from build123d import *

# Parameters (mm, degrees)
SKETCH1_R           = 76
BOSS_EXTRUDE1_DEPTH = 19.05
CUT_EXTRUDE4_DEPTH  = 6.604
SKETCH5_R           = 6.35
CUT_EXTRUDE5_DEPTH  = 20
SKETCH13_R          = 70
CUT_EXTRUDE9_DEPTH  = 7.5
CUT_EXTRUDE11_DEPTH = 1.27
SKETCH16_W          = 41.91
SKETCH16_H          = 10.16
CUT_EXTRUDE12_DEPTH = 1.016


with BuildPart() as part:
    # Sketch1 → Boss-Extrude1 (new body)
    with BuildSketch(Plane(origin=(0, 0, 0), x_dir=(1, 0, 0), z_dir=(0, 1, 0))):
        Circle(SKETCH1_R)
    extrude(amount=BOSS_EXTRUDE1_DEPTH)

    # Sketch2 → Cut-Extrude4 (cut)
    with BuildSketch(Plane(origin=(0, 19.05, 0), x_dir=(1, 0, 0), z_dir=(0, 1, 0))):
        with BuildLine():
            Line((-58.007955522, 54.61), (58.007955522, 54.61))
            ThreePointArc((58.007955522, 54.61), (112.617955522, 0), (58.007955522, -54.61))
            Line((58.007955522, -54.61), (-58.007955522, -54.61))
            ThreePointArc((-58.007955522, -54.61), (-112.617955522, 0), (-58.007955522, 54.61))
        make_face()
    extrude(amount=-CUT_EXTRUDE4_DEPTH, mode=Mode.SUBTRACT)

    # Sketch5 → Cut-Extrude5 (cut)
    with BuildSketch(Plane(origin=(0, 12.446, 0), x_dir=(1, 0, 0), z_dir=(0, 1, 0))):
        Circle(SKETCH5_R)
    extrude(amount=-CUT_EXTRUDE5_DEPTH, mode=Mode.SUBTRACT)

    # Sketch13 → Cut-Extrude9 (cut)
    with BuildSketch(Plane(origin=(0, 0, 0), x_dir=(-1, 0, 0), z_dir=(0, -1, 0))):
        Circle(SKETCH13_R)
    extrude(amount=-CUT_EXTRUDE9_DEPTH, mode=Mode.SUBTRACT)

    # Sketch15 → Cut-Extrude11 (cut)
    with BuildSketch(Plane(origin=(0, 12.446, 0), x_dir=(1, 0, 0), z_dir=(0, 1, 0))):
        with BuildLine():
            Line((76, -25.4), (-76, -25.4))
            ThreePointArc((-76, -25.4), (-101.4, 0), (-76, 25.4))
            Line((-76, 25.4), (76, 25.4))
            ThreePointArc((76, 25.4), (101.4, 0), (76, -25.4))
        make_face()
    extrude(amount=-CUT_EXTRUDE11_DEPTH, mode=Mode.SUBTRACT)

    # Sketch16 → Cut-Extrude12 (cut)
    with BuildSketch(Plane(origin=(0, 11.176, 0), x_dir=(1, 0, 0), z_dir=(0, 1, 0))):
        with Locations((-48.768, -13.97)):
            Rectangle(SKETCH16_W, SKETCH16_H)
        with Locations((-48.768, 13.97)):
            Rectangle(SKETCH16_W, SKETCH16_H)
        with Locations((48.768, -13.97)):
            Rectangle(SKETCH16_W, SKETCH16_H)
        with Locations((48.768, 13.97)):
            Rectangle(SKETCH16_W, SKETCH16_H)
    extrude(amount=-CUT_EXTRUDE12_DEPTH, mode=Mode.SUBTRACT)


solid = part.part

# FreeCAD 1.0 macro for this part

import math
import FreeCAD as App
import Part
import Sketcher
from FreeCAD import Vector
Q = App.Units.Quantity


def add_polygon(sketch, points):
    """Adds a closed chain of lines whose ends are joined by coincident constraints."""
    first, n = sketch.GeometryCount, len(points)
    for a, b in zip(points, points[1:] + points[:1]):
        sketch.addGeometry(Part.LineSegment(App.Vector(*a, 0), App.Vector(*b, 0)), False)
    for i in range(n):
        sketch.addConstraint(Sketcher.Constraint("Coincident", first + i, 2, first + (i + 1) % n, 1))

doc = App.newDocument("Part")
params = doc.addObject("Spreadsheet::Sheet", "Params")
for row, (alias, value) in enumerate([
    ("pad1_length", "0.75 in"),
    ("sketch2_radius", "2.15 in"),
    ("pocket1_length", "0.26 in"),
    ("sketch3_diameter", "0.5 in"),
    ("pocket2_length", "20 mm"),
    ("pocket3_length", "7.5 mm"),
    ("sketch5_radius", "1 in"),
    ("pocket4_length", "0.05 in"),
    ("sketch6_height", "0.4 in"),
    ("sketch6_width", "1.65 in"),
    ("pocket5_length", "0.04 in"),
], start=1):
    params.set(f"A{row}", alias)
    params.set(f"B{row}", "=" + value)
    params.setAlias(f"B{row}", alias)

body = doc.addObject("PartDesign::Body", "Body")

# Sketch on XZ plane
sketch1 = doc.addObject("Sketcher::SketchObject", "Sketch")
body.addObject(sketch1)
sketch1.AttachmentSupport = (doc.XZ_Plane, [""])
sketch1.MapMode = "FlatFace"
sketch1.addGeometry(Part.Circle(Vector(0, 0, 0), Vector(0, 0, 1), 76), False)
sketch1.addConstraint(Sketcher.Constraint("Coincident", 0, 3, -1, 1))
sketch1.addConstraint(Sketcher.Constraint("Diameter", 0, Q("152 mm")))
pad1 = doc.addObject("PartDesign::Pad", "Pad")
body.addObject(pad1)
pad1.Profile = sketch1
pad1.setExpression("Length", "Params.pad1_length")
pad1.Reversed = True

# Sketch on XZ plane
sketch2 = doc.addObject("Sketcher::SketchObject", "Sketch001")
body.addObject(sketch2)
sketch2.AttachmentSupport = (doc.XZ_Plane, [""])
sketch2.MapMode = "FlatFace"
sketch2.AttachmentOffset = App.Placement(Vector(0, 0, -0.75 * 25.4), App.Rotation())
sketch2.addGeometry(Part.LineSegment(Vector(58, -55, 0), Vector(-58, -55, 0)), False)
sketch2.addGeometry(Part.ArcOfCircle(Part.Circle(Vector(-58, 0, 0), Vector(0, 0, 1), 55), math.radians(90), math.radians(270)), False)
sketch2.addGeometry(Part.LineSegment(Vector(-58, 55, 0), Vector(58, 55, 0)), False)
sketch2.addGeometry(Part.ArcOfCircle(Part.Circle(Vector(58, 0, 0), Vector(0, 0, 1), 55), math.radians(-90), math.radians(90)), False)
sketch2.addConstraint(Sketcher.Constraint("Tangent", 0, 2, 1, 2))
sketch2.addConstraint(Sketcher.Constraint("Tangent", 1, 1, 2, 1))
sketch2.addConstraint(Sketcher.Constraint("Tangent", 2, 2, 3, 2))
sketch2.addConstraint(Sketcher.Constraint("Tangent", 3, 1, 0, 1))
sketch2.addConstraint(Sketcher.Constraint("Horizontal", 0))
sketch2.addConstraint(Sketcher.Constraint("Horizontal", 2))
sketch2.addConstraint(Sketcher.Constraint("Symmetric", 1, 3, 3, 3, -1, 1))
sketch2.addConstraint(Sketcher.Constraint("Radius", 1, Q("2.15 in")))
sketch2.addConstraint(Sketcher.Constraint("DistanceX", 0, 2, 0, 1, Q("116.015911 mm")))
sketch2.setExpression("Constraints[7]", "Params.sketch2_radius")
pocket1 = doc.addObject("PartDesign::Pocket", "Pocket")
body.addObject(pocket1)
pocket1.Profile = sketch2
pocket1.setExpression("Length", "Params.pocket1_length")
pocket1.Reversed = True

# Sketch on XZ plane
sketch3 = doc.addObject("Sketcher::SketchObject", "Sketch002")
body.addObject(sketch3)
sketch3.AttachmentSupport = (doc.XZ_Plane, [""])
sketch3.MapMode = "FlatFace"
sketch3.AttachmentOffset = App.Placement(Vector(0, 0, -0.49 * 25.4), App.Rotation())
sketch3.addGeometry(Part.Circle(Vector(0, 0, 0), Vector(0, 0, 1), 6), False)
sketch3.addConstraint(Sketcher.Constraint("Coincident", 0, 3, -1, 1))
sketch3.addConstraint(Sketcher.Constraint("Diameter", 0, Q("0.5 in")))
sketch3.setExpression("Constraints[1]", "Params.sketch3_diameter")
pocket2 = doc.addObject("PartDesign::Pocket", "Pocket001")
body.addObject(pocket2)
pocket2.Profile = sketch3
pocket2.setExpression("Length", "Params.pocket2_length")
pocket2.Reversed = True

# Sketch on XZ plane
sketch4 = doc.addObject("Sketcher::SketchObject", "Sketch003")
body.addObject(sketch4)
sketch4.AttachmentSupport = (doc.XZ_Plane, [""])
sketch4.MapMode = "FlatFace"
sketch4.addGeometry(Part.Circle(Vector(0, 0, 0), Vector(0, 0, 1), 70), False)
sketch4.addConstraint(Sketcher.Constraint("Coincident", 0, 3, -1, 1))
sketch4.addConstraint(Sketcher.Constraint("Diameter", 0, Q("140 mm")))
pocket3 = doc.addObject("PartDesign::Pocket", "Pocket002")
body.addObject(pocket3)
pocket3.Profile = sketch4
pocket3.setExpression("Length", "Params.pocket3_length")

# Sketch on XZ plane
sketch5 = doc.addObject("Sketcher::SketchObject", "Sketch004")
body.addObject(sketch5)
sketch5.AttachmentSupport = (doc.XZ_Plane, [""])
sketch5.MapMode = "FlatFace"
sketch5.AttachmentOffset = App.Placement(Vector(0, 0, -0.49 * 25.4), App.Rotation())
sketch5.addGeometry(Part.LineSegment(Vector(-76, 25, 0), Vector(76, 25, 0)), False)
sketch5.addGeometry(Part.ArcOfCircle(Part.Circle(Vector(76, 0, 0), Vector(0, 0, 1), 25), math.radians(-90), math.radians(90)), False)
sketch5.addGeometry(Part.LineSegment(Vector(76, -25, 0), Vector(-76, -25, 0)), False)
sketch5.addGeometry(Part.ArcOfCircle(Part.Circle(Vector(-76, 0, 0), Vector(0, 0, 1), 25), math.radians(90), math.radians(270)), False)
sketch5.addConstraint(Sketcher.Constraint("Tangent", 0, 2, 1, 2))
sketch5.addConstraint(Sketcher.Constraint("Tangent", 1, 1, 2, 1))
sketch5.addConstraint(Sketcher.Constraint("Tangent", 2, 2, 3, 2))
sketch5.addConstraint(Sketcher.Constraint("Tangent", 3, 1, 0, 1))
sketch5.addConstraint(Sketcher.Constraint("Horizontal", 0))
sketch5.addConstraint(Sketcher.Constraint("Horizontal", 2))
sketch5.addConstraint(Sketcher.Constraint("Symmetric", 1, 3, 3, 3, -1, 1))
sketch5.addConstraint(Sketcher.Constraint("Radius", 1, Q("1 in")))
sketch5.addConstraint(Sketcher.Constraint("DistanceX", 0, 1, 0, 2, Q("152 mm")))
sketch5.setExpression("Constraints[7]", "Params.sketch5_radius")
pocket4 = doc.addObject("PartDesign::Pocket", "Pocket003")
body.addObject(pocket4)
pocket4.Profile = sketch5
pocket4.setExpression("Length", "Params.pocket4_length")
pocket4.Reversed = True

# Sketch on XZ plane
sketch6 = doc.addObject("Sketcher::SketchObject", "Sketch005")
body.addObject(sketch6)
sketch6.AttachmentSupport = (doc.XZ_Plane, [""])
sketch6.MapMode = "FlatFace"
sketch6.AttachmentOffset = App.Placement(Vector(0, 0, -0.44 * 25.4), App.Rotation())
add_polygon(sketch6, [(-70, 9), (-70, 19), (-28, 19), (-28, 9)])  # lines 0-3
add_polygon(sketch6, [(-70, -19), (-70, -9), (-28, -9), (-28, -19)])  # lines 4-7
add_polygon(sketch6, [(28, 9), (28, 19), (70, 19), (70, 9)])  # lines 8-11
add_polygon(sketch6, [(28, -19), (28, -9), (70, -9), (70, -19)])  # lines 12-15
sketch6.addConstraint(Sketcher.Constraint("Vertical", 0))
sketch6.addConstraint(Sketcher.Constraint("Horizontal", 1))
sketch6.addConstraint(Sketcher.Constraint("Vertical", 2))
sketch6.addConstraint(Sketcher.Constraint("Horizontal", 3))
sketch6.addConstraint(Sketcher.Constraint("Vertical", 4))
sketch6.addConstraint(Sketcher.Constraint("Horizontal", 5))
sketch6.addConstraint(Sketcher.Constraint("Vertical", 6))
sketch6.addConstraint(Sketcher.Constraint("Horizontal", 7))
sketch6.addConstraint(Sketcher.Constraint("Vertical", 8))
sketch6.addConstraint(Sketcher.Constraint("Horizontal", 9))
sketch6.addConstraint(Sketcher.Constraint("Vertical", 10))
sketch6.addConstraint(Sketcher.Constraint("Horizontal", 11))
sketch6.addConstraint(Sketcher.Constraint("Vertical", 12))
sketch6.addConstraint(Sketcher.Constraint("Horizontal", 13))
sketch6.addConstraint(Sketcher.Constraint("Vertical", 14))
sketch6.addConstraint(Sketcher.Constraint("Horizontal", 15))
sketch6.addConstraint(Sketcher.Constraint("Symmetric", 6, 2, 8, 2, -1, 1))
sketch6.addConstraint(Sketcher.Constraint("Symmetric", 4, 2, 10, 2, -1, 1))
sketch6.addConstraint(Sketcher.Constraint("Symmetric", 2, 2, 12, 2, -1, 1))
sketch6.addConstraint(Sketcher.Constraint("Symmetric", 0, 2, 14, 2, -1, 1))
sketch6.addConstraint(Sketcher.Constraint("Symmetric", 1, 2, 8, 2, -2))
sketch6.addConstraint(Sketcher.Constraint("Symmetric", 3, 2, 10, 2, -2))
sketch6.addConstraint(Sketcher.Constraint("DistanceY", 0, 1, 0, 2, Q("0.4 in")))
sketch6.addConstraint(Sketcher.Constraint("DistanceX", 1, 1, 1, 2, Q("1.65 in")))
sketch6.addConstraint(Sketcher.Constraint("DistanceY", 4, 2, 3, 2, Q("0.7 in")))
sketch6.addConstraint(Sketcher.Constraint("DistanceX", 1, 2, 8, 2, Q("2.19 in")))
sketch6.setExpression("Constraints[38]", "Params.sketch6_height")
sketch6.setExpression("Constraints[39]", "Params.sketch6_width")
pocket5 = doc.addObject("PartDesign::Pocket", "Pocket004")
body.addObject(pocket5)
pocket5.Profile = sketch6
pocket5.setExpression("Length", "Params.pocket5_length")
pocket5.Reversed = True

doc.recompute()
